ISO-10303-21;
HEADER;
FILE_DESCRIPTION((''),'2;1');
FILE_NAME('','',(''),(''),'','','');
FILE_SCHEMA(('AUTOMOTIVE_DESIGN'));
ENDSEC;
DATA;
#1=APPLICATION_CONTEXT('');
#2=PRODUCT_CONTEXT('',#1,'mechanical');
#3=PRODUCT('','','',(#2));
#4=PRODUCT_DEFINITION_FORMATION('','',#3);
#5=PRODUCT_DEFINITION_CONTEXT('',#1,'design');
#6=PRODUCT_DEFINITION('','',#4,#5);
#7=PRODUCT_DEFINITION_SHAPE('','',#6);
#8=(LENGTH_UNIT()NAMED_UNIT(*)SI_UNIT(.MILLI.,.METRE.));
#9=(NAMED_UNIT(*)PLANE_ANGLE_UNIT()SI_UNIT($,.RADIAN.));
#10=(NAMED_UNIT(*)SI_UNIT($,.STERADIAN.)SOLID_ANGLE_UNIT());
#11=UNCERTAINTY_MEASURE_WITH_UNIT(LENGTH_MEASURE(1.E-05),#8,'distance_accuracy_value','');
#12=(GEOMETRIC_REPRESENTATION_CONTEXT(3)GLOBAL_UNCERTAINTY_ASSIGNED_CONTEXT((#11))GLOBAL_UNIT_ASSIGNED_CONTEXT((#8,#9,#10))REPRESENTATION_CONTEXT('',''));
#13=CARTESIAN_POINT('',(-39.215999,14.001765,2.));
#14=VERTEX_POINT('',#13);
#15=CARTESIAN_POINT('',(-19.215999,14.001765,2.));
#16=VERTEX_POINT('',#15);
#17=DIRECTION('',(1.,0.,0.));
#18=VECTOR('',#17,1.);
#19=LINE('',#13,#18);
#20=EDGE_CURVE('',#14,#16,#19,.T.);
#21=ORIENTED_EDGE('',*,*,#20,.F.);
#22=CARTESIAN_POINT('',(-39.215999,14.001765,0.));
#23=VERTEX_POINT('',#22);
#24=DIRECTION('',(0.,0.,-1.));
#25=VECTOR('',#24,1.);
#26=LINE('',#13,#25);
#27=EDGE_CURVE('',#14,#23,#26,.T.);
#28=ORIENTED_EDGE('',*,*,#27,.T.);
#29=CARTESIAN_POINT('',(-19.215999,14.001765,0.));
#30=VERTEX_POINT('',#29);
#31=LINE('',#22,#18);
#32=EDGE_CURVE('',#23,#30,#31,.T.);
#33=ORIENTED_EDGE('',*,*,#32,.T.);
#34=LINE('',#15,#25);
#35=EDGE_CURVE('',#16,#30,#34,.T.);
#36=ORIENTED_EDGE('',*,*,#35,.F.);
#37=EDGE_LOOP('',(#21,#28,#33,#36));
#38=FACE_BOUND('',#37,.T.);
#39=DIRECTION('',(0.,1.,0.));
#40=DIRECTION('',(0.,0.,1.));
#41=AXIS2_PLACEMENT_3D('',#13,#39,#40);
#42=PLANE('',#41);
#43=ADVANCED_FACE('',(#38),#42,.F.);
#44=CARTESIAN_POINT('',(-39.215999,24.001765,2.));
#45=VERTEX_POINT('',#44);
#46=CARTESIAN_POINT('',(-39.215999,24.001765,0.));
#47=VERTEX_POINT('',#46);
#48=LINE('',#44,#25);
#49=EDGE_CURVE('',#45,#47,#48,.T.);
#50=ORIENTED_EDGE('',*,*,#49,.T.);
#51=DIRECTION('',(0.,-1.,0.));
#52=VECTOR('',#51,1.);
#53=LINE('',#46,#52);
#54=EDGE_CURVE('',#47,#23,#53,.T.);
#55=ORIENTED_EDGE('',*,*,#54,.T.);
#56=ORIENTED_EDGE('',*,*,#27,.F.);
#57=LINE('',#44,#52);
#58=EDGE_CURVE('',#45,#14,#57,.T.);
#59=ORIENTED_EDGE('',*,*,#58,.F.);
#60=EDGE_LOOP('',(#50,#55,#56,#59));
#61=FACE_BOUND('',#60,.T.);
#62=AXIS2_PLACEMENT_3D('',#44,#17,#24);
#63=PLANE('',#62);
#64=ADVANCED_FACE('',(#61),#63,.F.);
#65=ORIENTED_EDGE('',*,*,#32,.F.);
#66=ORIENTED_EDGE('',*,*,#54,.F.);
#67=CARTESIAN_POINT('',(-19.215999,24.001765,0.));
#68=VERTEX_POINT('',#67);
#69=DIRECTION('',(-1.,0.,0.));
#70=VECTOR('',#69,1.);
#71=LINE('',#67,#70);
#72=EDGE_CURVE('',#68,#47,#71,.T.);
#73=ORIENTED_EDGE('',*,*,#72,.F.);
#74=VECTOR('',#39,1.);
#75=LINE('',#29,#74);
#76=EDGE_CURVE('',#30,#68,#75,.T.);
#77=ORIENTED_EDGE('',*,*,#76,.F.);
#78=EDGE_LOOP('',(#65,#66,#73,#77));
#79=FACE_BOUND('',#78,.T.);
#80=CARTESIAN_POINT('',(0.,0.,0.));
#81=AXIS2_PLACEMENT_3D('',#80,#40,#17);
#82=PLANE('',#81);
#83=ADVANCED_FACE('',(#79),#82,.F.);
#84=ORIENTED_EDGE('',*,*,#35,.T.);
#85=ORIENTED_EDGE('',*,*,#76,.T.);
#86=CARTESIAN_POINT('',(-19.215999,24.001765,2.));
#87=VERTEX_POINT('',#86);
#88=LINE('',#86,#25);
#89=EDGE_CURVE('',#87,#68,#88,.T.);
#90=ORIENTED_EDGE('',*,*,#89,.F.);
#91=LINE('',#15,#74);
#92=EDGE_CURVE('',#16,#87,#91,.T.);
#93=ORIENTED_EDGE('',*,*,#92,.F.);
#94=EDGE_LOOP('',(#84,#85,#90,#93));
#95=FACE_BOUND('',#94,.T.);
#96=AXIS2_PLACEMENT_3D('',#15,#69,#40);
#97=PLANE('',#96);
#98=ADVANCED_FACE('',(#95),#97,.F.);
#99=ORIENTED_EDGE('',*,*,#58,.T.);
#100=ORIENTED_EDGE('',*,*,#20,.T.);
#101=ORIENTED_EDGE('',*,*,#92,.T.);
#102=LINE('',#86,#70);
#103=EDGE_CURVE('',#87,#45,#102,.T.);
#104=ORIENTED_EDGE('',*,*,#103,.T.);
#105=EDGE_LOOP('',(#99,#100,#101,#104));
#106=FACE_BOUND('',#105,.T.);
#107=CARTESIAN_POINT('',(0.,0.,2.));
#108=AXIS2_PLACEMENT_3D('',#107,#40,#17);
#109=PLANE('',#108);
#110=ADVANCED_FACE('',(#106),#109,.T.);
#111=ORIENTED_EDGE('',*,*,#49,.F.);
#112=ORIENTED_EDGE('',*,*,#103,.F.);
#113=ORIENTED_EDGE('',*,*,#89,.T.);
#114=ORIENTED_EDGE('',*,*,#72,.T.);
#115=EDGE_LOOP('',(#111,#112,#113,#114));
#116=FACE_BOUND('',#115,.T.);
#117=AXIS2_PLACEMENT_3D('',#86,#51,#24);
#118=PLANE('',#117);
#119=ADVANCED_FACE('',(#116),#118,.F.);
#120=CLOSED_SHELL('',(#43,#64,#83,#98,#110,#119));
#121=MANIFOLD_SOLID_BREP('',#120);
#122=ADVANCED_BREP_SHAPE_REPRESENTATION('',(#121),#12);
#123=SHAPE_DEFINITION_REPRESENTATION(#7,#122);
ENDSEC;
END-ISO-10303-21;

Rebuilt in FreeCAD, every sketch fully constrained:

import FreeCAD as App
import Part
import Sketcher
from FreeCAD import Vector

doc = App.newDocument("Part")
params = doc.addObject("Spreadsheet::Sheet", "Params")
for row, (alias, value) in enumerate([
    ("sketch1_width", "20 mm"),
    ("sketch1_height", "10 mm"),
    ("pad1_length", "2 mm"),
], start=1):
    params.set(f"A{row}", alias)
    params.set(f"B{row}", "=" + value)
    params.setAlias(f"B{row}", alias)

body = doc.addObject("PartDesign::Body", "Body")

sketch1 = body.newObject("Sketcher::SketchObject", "Sketch")
sketch1.AttachmentSupport = (doc.getObject("XY_Plane"), [""])
sketch1.MapMode = "FlatFace"
sketch1.addGeometry([
    Part.LineSegment(Vector(-39, 24, 0), Vector(-39, 14, 0)),
    Part.LineSegment(Vector(-39, 14, 0), Vector(-19, 14, 0)),
    Part.LineSegment(Vector(-19, 14, 0), Vector(-19, 24, 0)),
    Part.LineSegment(Vector(-19, 24, 0), Vector(-39, 24, 0)),
], False)
sketch1.addConstraint([
    Sketcher.Constraint("Coincident", 0, 2, 1, 1),
    Sketcher.Constraint("Coincident", 1, 2, 2, 1),
    Sketcher.Constraint("Coincident", 2, 2, 3, 1),
    Sketcher.Constraint("Coincident", 3, 2, 0, 1),
    Sketcher.Constraint("Vertical", 0),
    Sketcher.Constraint("Horizontal", 1),
    Sketcher.Constraint("Vertical", 2),
    Sketcher.Constraint("Horizontal", 3),
    Sketcher.Constraint("DistanceX", 1, 1, 1, 2, 20.0),
    Sketcher.Constraint("DistanceY", 0, 2, 0, 1, 10.0),
    Sketcher.Constraint("DistanceX", 0, 2, -1, 1, 39.215999),
    Sketcher.Constraint("DistanceY", -1, 1, 0, 2, 14.001765),
])
sketch1.setExpression("Constraints[8]", "Params.sketch1_width")
sketch1.setExpression("Constraints[9]", "Params.sketch1_height")
pad1 = body.newObject("PartDesign::Pad", "Pad")
pad1.Profile = sketch1
pad1.setExpression("Length", "Params.pad1_length")

doc.recompute()
